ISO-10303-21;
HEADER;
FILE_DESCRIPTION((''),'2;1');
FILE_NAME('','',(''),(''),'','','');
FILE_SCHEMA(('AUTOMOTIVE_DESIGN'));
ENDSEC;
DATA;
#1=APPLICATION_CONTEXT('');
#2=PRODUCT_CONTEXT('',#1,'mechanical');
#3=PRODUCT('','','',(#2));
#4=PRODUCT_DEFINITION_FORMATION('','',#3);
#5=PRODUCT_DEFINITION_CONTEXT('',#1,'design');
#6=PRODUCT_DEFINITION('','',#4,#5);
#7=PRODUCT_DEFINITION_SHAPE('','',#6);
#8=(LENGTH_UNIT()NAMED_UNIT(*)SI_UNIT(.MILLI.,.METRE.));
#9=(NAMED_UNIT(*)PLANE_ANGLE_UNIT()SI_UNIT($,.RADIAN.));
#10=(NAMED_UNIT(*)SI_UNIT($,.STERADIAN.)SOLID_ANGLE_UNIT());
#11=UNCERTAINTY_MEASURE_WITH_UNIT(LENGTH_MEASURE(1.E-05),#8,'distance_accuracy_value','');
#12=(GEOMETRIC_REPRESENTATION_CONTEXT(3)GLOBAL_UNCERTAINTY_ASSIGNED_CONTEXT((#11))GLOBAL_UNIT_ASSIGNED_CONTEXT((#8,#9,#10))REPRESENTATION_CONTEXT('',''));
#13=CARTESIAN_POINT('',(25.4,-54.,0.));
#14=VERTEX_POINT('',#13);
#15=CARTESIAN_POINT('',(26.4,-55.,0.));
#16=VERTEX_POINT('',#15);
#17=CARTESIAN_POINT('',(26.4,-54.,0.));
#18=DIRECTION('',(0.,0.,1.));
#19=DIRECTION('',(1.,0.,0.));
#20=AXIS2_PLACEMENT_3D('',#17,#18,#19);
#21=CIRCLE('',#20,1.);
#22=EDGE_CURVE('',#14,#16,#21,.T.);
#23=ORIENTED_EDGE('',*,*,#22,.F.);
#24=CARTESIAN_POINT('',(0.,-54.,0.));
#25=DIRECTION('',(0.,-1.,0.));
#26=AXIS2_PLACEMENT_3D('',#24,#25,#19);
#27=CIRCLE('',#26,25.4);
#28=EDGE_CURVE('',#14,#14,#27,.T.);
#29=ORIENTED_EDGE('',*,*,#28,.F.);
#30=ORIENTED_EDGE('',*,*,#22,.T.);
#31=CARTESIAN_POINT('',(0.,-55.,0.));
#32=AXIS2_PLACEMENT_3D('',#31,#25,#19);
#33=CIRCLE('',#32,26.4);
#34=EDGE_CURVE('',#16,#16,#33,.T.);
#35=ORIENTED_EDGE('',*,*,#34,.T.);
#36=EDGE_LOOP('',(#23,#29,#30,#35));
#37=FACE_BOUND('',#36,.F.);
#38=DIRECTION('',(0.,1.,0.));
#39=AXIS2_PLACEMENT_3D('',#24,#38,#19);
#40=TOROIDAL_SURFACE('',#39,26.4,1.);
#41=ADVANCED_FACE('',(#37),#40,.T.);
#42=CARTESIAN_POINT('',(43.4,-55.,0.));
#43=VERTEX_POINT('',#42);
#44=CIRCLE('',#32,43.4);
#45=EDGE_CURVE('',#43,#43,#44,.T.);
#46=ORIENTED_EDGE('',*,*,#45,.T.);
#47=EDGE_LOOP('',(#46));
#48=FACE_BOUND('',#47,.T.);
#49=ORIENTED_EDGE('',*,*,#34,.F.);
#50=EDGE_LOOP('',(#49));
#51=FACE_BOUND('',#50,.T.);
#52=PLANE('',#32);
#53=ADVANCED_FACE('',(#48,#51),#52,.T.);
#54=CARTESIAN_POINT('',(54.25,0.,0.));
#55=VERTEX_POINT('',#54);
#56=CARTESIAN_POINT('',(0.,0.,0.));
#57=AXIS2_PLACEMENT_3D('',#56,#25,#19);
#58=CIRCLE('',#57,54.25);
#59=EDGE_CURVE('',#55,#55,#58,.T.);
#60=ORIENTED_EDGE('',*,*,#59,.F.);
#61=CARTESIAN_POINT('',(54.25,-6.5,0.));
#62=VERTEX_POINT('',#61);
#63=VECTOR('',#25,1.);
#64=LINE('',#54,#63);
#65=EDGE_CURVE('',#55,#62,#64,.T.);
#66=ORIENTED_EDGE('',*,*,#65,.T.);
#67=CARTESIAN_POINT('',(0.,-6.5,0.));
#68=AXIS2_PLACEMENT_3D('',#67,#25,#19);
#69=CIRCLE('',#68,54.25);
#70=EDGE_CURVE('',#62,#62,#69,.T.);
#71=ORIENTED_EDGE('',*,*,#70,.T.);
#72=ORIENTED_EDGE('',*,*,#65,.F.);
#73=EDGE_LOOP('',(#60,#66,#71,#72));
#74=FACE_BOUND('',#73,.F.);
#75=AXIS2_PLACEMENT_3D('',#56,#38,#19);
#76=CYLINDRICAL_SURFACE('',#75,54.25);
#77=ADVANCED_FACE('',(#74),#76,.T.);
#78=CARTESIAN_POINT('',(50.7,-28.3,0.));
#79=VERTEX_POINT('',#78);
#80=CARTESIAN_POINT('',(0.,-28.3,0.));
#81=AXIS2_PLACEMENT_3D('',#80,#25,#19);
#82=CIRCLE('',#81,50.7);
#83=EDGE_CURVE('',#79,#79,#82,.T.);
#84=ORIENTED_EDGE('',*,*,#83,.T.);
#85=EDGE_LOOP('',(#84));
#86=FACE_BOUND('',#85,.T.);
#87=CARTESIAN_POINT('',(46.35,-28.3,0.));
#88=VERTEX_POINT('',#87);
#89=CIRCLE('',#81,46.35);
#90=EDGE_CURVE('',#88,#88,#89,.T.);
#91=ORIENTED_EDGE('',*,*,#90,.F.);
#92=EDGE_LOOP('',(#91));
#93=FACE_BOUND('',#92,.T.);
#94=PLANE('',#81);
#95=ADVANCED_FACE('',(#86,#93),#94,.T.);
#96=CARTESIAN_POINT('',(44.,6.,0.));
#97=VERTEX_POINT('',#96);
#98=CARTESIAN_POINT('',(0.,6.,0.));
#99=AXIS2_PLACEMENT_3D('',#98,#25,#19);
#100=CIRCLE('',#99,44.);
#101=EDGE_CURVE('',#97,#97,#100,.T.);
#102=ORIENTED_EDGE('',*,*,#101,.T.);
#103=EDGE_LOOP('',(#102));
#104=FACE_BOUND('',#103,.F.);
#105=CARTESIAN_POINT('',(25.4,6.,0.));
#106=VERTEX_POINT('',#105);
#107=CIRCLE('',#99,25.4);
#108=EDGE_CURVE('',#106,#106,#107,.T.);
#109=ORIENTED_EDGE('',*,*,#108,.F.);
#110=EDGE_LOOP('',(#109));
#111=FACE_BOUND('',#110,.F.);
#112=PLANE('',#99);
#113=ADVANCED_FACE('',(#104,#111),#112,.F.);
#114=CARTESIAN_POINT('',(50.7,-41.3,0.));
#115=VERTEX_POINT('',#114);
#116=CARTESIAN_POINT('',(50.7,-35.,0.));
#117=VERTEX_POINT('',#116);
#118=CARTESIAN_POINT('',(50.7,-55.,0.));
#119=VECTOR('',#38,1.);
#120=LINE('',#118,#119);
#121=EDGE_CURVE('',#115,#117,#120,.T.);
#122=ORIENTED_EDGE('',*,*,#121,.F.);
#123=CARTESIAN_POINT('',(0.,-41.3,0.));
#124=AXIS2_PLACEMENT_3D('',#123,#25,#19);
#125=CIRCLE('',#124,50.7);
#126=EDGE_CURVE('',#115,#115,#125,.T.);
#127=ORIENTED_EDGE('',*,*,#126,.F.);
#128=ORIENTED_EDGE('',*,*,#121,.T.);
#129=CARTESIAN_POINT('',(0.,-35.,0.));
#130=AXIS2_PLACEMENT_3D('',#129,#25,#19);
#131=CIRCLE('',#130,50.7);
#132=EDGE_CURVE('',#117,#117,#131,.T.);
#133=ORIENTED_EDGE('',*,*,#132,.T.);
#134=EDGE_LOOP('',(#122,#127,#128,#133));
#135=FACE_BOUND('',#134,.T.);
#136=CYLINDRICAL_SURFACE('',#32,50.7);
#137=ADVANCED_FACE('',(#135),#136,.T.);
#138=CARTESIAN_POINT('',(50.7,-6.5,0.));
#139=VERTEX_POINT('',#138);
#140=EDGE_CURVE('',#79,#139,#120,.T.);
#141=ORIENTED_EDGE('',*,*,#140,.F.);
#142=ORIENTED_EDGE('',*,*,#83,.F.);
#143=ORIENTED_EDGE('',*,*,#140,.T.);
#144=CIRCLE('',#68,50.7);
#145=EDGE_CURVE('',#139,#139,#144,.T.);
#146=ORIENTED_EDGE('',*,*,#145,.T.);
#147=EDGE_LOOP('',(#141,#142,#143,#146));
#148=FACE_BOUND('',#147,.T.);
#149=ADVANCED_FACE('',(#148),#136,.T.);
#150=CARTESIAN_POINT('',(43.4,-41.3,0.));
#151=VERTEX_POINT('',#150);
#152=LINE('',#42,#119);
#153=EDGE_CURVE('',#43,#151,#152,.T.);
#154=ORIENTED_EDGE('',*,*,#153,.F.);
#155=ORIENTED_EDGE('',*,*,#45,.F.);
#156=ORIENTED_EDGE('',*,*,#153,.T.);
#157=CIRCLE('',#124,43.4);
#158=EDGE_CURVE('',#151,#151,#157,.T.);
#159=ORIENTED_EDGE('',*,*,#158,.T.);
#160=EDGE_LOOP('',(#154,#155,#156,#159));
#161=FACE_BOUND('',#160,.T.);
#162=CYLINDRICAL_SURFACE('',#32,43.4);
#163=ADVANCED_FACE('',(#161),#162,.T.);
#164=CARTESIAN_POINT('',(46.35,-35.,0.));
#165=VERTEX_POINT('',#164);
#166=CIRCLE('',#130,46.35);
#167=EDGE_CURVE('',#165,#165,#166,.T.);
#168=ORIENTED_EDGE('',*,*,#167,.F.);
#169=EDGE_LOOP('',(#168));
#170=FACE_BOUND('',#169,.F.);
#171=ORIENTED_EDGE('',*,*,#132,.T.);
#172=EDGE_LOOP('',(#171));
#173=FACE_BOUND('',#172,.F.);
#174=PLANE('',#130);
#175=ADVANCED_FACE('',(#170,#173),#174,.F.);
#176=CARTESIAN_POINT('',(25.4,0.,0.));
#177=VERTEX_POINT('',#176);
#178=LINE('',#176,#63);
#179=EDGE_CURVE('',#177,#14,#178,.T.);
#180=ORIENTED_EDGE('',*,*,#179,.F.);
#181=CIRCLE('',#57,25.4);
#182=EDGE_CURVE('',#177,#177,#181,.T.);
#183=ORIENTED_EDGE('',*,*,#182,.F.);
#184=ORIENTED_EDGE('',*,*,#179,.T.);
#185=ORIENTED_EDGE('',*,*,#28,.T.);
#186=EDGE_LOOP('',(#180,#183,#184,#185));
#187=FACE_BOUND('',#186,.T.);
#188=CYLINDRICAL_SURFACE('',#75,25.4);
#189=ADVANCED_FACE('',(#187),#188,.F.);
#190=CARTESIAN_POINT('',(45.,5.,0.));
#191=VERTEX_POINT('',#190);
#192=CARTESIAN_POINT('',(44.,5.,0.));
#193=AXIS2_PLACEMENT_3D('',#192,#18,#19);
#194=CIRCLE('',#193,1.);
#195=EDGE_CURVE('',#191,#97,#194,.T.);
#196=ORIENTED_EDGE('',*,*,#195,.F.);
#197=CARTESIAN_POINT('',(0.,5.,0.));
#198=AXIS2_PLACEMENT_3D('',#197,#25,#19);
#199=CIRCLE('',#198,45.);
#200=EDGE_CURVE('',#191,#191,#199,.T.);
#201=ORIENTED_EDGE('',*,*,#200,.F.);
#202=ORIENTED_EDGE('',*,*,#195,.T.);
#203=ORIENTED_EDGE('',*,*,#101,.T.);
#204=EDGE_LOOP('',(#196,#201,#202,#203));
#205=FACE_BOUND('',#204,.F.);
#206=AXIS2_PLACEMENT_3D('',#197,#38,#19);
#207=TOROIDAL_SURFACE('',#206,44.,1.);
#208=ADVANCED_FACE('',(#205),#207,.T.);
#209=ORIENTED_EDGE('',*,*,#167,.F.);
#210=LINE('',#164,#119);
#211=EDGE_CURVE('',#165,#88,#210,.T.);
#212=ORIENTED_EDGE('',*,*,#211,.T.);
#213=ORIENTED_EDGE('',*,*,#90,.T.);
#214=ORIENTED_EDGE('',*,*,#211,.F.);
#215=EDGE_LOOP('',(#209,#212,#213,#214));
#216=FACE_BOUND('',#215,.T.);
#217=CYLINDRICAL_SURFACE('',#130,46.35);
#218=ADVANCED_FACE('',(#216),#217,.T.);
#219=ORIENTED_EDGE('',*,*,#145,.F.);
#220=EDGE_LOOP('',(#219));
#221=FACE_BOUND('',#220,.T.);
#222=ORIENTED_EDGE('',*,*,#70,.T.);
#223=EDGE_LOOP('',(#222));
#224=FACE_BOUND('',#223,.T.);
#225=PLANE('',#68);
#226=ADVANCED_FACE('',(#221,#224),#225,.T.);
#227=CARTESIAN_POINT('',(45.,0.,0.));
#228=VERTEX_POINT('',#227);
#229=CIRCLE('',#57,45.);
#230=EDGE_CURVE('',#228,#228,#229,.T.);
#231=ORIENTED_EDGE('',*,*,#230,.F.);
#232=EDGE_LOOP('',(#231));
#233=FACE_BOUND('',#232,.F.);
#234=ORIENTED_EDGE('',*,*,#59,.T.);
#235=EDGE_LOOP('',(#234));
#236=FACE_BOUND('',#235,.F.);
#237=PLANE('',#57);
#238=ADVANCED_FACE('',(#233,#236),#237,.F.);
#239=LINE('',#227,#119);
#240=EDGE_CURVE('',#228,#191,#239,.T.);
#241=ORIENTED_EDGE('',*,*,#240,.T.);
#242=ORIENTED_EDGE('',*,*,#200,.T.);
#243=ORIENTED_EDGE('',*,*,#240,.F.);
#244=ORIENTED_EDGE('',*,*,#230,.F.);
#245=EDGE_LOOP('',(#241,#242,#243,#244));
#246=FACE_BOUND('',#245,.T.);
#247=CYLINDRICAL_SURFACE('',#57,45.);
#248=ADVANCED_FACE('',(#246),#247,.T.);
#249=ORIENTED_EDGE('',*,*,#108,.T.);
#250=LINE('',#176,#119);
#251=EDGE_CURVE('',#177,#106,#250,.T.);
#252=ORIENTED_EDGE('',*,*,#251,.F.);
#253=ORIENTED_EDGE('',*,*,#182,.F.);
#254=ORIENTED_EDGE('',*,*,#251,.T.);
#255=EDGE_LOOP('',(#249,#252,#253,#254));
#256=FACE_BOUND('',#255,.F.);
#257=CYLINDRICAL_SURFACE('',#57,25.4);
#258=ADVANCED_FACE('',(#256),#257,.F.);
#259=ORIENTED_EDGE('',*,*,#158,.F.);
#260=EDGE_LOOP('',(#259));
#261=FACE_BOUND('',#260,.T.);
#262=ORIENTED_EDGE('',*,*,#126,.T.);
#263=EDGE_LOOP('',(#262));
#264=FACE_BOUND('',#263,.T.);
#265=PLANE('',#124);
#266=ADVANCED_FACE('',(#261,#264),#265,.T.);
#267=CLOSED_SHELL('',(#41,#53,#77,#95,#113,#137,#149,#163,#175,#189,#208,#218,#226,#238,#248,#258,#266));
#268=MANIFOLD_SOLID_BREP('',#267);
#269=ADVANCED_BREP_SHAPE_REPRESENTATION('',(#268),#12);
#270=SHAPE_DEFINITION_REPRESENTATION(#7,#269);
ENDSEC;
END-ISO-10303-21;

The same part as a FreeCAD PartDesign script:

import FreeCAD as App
import Part
import Sketcher
Q = App.Units.Quantity


def edges_at(feature, points):
    """Names of the edges that pass closest to the given points."""
    edges = feature.Shape.Edges
    near = lambda p: min(range(len(edges)), key=lambda i: edges[i].distToShape(Part.Vertex(*p))[0])
    return sorted({f"Edge{near(p) + 1}" for p in points})

doc = App.newDocument("Part")
params = doc.addObject("Spreadsheet::Sheet", "Params")
for row, (alias, value) in enumerate([
    ("sketch1_diameter", "108.5 mm"),
    ("sketch1_diameter2", "50.8 mm"),
    ("pad1_length", "55 mm"),
    ("sketch2_diameter", "108.5 mm"),
    ("sketch2_diameter2", "92.7 mm"),
    ("pocket1_length", "6.7 mm"),
    ("sketch3_diameter", "108.5 mm"),
    ("sketch3_diameter2", "101.4 mm"),
    ("pocket2_length", "48.5 mm"),
    ("sketch4_diameter", "101.4 mm"),
    ("sketch4_diameter2", "86.8 mm"),
    ("pocket3_length", "13.7 mm"),
    ("fillet_radius", "1 mm"),
    ("sketch5_diameter", "90 mm"),
    ("sketch5_diameter2", "50.8 mm"),
    ("pad2_length", "6 mm"),
    ("fillet2_radius", "1 mm"),
], start=1):
    params.set(f"A{row}", alias)
    params.set(f"B{row}", "=" + value)
    params.setAlias(f"B{row}", alias)

body = doc.addObject("PartDesign::Body", "Body")

sketch1 = body.newObject("Sketcher::SketchObject", "Sketch")
sketch1.AttachmentSupport = (doc.getObject("XZ_Plane"), [""])
sketch1.MapMode = "FlatFace"
sketch1.addGeometry(Part.Circle(App.Vector(0, 0, 0), App.Vector(0, 0, 1), 54.25), False)
sketch1.addGeometry(Part.Circle(App.Vector(0, 0, 0), App.Vector(0, 0, 1), 25.4), False)
sketch1.addConstraint(Sketcher.Constraint("Coincident", 0, 3, -1, 1))
sketch1.addConstraint(Sketcher.Constraint("Coincident", 1, 3, -1, 1))
sketch1.addConstraint(Sketcher.Constraint("Diameter", 0, Q("108.5 mm")))
sketch1.addConstraint(Sketcher.Constraint("Diameter", 1, Q("50.8 mm")))
sketch1.setExpression("Constraints[2]", "Params.sketch1_diameter")
sketch1.setExpression("Constraints[3]", "Params.sketch1_diameter2")
pad1 = body.newObject("PartDesign::Pad", "Pad")
pad1.Profile = sketch1
pad1.setExpression("Length", "Params.pad1_length")

sketch2 = body.newObject("Sketcher::SketchObject", "Sketch001")
sketch2.AttachmentSupport = (doc.getObject("XZ_Plane"), [""])
sketch2.MapMode = "FlatFace"
sketch2.AttachmentOffset = App.Placement(App.Vector(0, 0, 35), App.Rotation())
sketch2.addGeometry(Part.Circle(App.Vector(0, 0, 0), App.Vector(0, 0, 1), 54.25), False)
sketch2.addGeometry(Part.Circle(App.Vector(0, 0, 0), App.Vector(0, 0, 1), 46.35), False)
sketch2.addConstraint(Sketcher.Constraint("Coincident", 0, 3, -1, 1))
sketch2.addConstraint(Sketcher.Constraint("Coincident", 1, 3, -1, 1))
sketch2.addConstraint(Sketcher.Constraint("Diameter", 0, Q("108.5 mm")))
sketch2.addConstraint(Sketcher.Constraint("Diameter", 1, Q("92.7 mm")))
sketch2.setExpression("Constraints[2]", "Params.sketch2_diameter")
sketch2.setExpression("Constraints[3]", "Params.sketch2_diameter2")
pocket1 = body.newObject("PartDesign::Pocket", "Pocket")
pocket1.Profile = sketch2
pocket1.setExpression("Length", "Params.pocket1_length")

sketch3 = body.newObject("Sketcher::SketchObject", "Sketch002")
sketch3.AttachmentSupport = (doc.getObject("XZ_Plane"), [""])
sketch3.MapMode = "FlatFace"
sketch3.AttachmentOffset = App.Placement(App.Vector(0, 0, 55), App.Rotation())
sketch3.addGeometry(Part.Circle(App.Vector(0, 0, 0), App.Vector(0, 0, 1), 54.25), False)
sketch3.addGeometry(Part.Circle(App.Vector(0, 0, 0), App.Vector(0, 0, 1), 50.7), False)
sketch3.addConstraint(Sketcher.Constraint("Coincident", 0, 3, -1, 1))
sketch3.addConstraint(Sketcher.Constraint("Coincident", 1, 3, -1, 1))
sketch3.addConstraint(Sketcher.Constraint("Diameter", 0, Q("108.5 mm")))
sketch3.addConstraint(Sketcher.Constraint("Diameter", 1, Q("101.4 mm")))
sketch3.setExpression("Constraints[2]", "Params.sketch3_diameter")
sketch3.setExpression("Constraints[3]", "Params.sketch3_diameter2")
pocket2 = body.newObject("PartDesign::Pocket", "Pocket001")
pocket2.Profile = sketch3
pocket2.setExpression("Length", "Params.pocket2_length")

sketch4 = body.newObject("Sketcher::SketchObject", "Sketch003")
sketch4.AttachmentSupport = (doc.getObject("XZ_Plane"), [""])
sketch4.MapMode = "FlatFace"
sketch4.AttachmentOffset = App.Placement(App.Vector(0, 0, 55), App.Rotation())
sketch4.addGeometry(Part.Circle(App.Vector(0, 0, 0), App.Vector(0, 0, 1), 50.7), False)
sketch4.addGeometry(Part.Circle(App.Vector(0, 0, 0), App.Vector(0, 0, 1), 43.4), False)
sketch4.addConstraint(Sketcher.Constraint("Coincident", 0, 3, -1, 1))
sketch4.addConstraint(Sketcher.Constraint("Coincident", 1, 3, -1, 1))
sketch4.addConstraint(Sketcher.Constraint("Diameter", 0, Q("101.4 mm")))
sketch4.addConstraint(Sketcher.Constraint("Diameter", 1, Q("86.8 mm")))
sketch4.setExpression("Constraints[2]", "Params.sketch4_diameter")
sketch4.setExpression("Constraints[3]", "Params.sketch4_diameter2")
pocket3 = body.newObject("PartDesign::Pocket", "Pocket002")
pocket3.Profile = sketch4
pocket3.setExpression("Length", "Params.pocket3_length")
doc.recompute()

fillet = body.newObject("PartDesign::Fillet", "Fillet")
fillet.Base = (pocket3, edges_at(pocket3, [(-25.4, -55, 0)]))
fillet.setExpression("Radius", "Params.fillet_radius")

sketch5 = body.newObject("Sketcher::SketchObject", "Sketch004")
sketch5.AttachmentSupport = (doc.getObject("XZ_Plane"), [""])
sketch5.MapMode = "FlatFace"
sketch5.addGeometry(Part.Circle(App.Vector(0, 0, 0), App.Vector(0, 0, 1), 45), False)
sketch5.addGeometry(Part.Circle(App.Vector(0, 0, 0), App.Vector(0, 0, 1), 25.4), False)
sketch5.addConstraint(Sketcher.Constraint("Coincident", 0, 3, -1, 1))
sketch5.addConstraint(Sketcher.Constraint("Coincident", 1, 3, -1, 1))
sketch5.addConstraint(Sketcher.Constraint("Diameter", 0, Q("90 mm")))
sketch5.addConstraint(Sketcher.Constraint("Diameter", 1, Q("50.8 mm")))
sketch5.setExpression("Constraints[2]", "Params.sketch5_diameter")
sketch5.setExpression("Constraints[3]", "Params.sketch5_diameter2")
pad2 = body.newObject("PartDesign::Pad", "Pad001")
pad2.Profile = sketch5
pad2.setExpression("Length", "Params.pad2_length")
pad2.Reversed = True
doc.recompute()

fillet2 = body.newObject("PartDesign::Fillet", "Fillet001")
fillet2.Base = (pad2, edges_at(pad2, [(-45, 6, 0)]))
fillet2.setExpression("Radius", "Params.fillet2_radius")

doc.recompute()
